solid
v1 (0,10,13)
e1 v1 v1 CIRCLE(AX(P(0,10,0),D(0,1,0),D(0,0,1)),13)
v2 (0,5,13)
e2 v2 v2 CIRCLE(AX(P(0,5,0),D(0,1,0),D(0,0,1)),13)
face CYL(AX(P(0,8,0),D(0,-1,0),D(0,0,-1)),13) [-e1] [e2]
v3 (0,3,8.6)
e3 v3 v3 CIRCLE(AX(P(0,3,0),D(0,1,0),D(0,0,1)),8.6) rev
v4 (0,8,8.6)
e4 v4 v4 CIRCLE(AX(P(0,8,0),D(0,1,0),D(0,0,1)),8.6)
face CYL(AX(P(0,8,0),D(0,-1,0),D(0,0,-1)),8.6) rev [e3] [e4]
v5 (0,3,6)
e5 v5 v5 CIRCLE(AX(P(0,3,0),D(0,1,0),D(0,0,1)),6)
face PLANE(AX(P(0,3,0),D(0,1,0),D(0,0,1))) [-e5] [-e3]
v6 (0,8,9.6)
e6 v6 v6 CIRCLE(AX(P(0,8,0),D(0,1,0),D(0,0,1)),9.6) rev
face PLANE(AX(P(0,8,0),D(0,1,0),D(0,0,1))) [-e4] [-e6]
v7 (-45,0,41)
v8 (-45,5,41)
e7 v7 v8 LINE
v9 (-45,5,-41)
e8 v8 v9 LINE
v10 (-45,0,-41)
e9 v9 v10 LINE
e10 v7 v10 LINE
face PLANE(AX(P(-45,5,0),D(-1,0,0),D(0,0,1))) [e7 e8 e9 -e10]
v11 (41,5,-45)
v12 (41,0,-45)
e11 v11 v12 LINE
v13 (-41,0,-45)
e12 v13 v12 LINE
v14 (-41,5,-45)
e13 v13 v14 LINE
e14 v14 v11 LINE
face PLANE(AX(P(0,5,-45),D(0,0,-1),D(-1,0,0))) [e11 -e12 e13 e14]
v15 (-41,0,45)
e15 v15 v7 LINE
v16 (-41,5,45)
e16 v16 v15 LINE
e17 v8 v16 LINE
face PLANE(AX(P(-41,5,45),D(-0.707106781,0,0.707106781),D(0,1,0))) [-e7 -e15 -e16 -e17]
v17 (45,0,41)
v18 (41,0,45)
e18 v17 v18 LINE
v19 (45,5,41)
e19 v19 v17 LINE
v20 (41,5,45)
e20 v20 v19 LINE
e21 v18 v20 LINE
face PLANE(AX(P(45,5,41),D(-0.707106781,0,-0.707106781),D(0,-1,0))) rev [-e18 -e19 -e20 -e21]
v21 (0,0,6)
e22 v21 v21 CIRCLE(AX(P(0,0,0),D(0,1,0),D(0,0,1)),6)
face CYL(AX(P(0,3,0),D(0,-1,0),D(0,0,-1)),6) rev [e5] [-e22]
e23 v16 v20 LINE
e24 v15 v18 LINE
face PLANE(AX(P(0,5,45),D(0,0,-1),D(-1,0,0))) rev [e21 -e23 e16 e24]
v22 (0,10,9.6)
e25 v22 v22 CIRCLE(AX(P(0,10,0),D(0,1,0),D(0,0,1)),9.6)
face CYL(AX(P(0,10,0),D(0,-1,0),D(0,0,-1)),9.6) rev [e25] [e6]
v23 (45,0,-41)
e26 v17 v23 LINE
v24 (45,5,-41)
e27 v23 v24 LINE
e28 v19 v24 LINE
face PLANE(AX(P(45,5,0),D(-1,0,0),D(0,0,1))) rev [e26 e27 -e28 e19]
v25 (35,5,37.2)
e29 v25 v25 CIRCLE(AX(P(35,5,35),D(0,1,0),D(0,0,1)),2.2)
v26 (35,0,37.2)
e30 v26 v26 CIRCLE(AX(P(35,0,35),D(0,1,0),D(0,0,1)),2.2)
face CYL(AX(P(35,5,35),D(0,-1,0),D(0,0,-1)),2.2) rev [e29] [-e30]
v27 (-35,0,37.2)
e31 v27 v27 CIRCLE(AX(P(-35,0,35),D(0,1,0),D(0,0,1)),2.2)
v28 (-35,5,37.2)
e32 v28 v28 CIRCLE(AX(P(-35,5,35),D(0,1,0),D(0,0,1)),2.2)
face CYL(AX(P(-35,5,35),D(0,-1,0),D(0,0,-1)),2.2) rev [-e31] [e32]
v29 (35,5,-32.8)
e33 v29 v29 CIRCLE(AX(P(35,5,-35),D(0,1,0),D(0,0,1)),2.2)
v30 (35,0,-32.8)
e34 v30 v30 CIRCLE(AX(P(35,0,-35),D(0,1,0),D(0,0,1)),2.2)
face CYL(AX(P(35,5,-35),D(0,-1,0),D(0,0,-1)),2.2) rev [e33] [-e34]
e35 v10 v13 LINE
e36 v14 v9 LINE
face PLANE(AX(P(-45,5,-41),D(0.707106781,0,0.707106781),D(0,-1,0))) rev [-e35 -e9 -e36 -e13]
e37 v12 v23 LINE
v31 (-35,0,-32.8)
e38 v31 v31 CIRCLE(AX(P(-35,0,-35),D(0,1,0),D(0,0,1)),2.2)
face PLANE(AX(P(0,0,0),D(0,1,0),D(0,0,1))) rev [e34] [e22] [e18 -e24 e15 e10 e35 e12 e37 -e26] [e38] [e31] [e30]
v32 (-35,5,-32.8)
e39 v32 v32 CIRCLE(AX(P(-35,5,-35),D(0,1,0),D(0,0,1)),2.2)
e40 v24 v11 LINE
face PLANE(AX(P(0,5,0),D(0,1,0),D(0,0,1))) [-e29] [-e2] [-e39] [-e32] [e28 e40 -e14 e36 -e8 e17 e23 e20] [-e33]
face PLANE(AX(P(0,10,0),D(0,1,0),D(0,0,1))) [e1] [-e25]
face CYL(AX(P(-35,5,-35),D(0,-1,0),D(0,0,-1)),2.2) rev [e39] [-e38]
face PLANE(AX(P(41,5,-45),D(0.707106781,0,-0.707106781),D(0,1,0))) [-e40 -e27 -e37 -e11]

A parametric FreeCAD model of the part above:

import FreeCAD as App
import Part
import Sketcher

V = App.Vector


def edges_at(feature, points):
    """Names of the edges that pass closest to the given points."""
    edges = feature.Shape.Edges
    near = lambda p: min(range(len(edges)), key=lambda i: edges[i].distToShape(Part.Vertex(*p))[0])
    return sorted({f"Edge{near(p) + 1}" for p in points})


def add_polygon(sketch, points):
    """Adds a closed chain of lines whose ends are joined by coincident constraints."""
    first, n = sketch.GeometryCount, len(points)
    for a, b in zip(points, points[1:] + points[:1]):
        sketch.addGeometry(Part.LineSegment(App.Vector(*a, 0), App.Vector(*b, 0)), False)
    for i in range(n):
        sketch.addConstraint(Sketcher.Constraint("Coincident", first + i, 2, first + (i + 1) % n, 1))

doc = App.newDocument("Part")
body = doc.addObject("PartDesign::Body", "Body")

# Sketch on XZ plane
sketch1 = doc.addObject("Sketcher::SketchObject", "Sketch")
body.addObject(sketch1)
sketch1.AttachmentSupport = (doc.XZ_Plane, [""])
sketch1.MapMode = "FlatFace"
add_polygon(sketch1, [(-45, -45), (-45, 45), (45, 45), (45, -45)])  # lines 0-3
sketch1.addGeometry(Part.Circle(V(-35, 35, 0), V(0, 0, 1), 2.2), False)  # 4
sketch1.addGeometry(Part.Circle(V(35, 35, 0), V(0, 0, 1), 2.2), False)  # 5
sketch1.addGeometry(Part.Circle(V(-35, -35, 0), V(0, 0, 1), 2.2), False)  # 6
sketch1.addGeometry(Part.Circle(V(0, 0, 0), V(0, 0, 1), 13), False)  # 7
sketch1.addGeometry(Part.Circle(V(35, -35, 0), V(0, 0, 1), 2.2), False)  # 8
sketch1.addConstraint([
    Sketcher.Constraint("Vertical", 0),
    Sketcher.Constraint("Horizontal", 1),
    Sketcher.Constraint("Vertical", 2),
    Sketcher.Constraint("Horizontal", 3),
    Sketcher.Constraint("Coincident", 7, 3, -1, 1),
    Sketcher.Constraint("Equal", 4, 5),
    Sketcher.Constraint("Equal", 5, 6),
    Sketcher.Constraint("Equal", 6, 8),
    Sketcher.Constraint("Symmetric", 5, 3, 6, 3, -1, 1),
    Sketcher.Constraint("Symmetric", 4, 3, 8, 3, -1, 1),
    Sketcher.Constraint("Symmetric", 0, 2, 2, 2, -1, 1),
    Sketcher.Constraint("Symmetric", 4, 3, 5, 3, -2),
    Sketcher.Constraint("Equal", 3, 0),
    Sketcher.Constraint("Diameter", 7, 26.0),
    Sketcher.Constraint("Diameter", 4, 4.4),
    Sketcher.Constraint("DistanceX", 1, 1, 1, 2, 90.0),
    Sketcher.Constraint("DistanceX", 4, 3, -1, 1, 35.0),
    Sketcher.Constraint("DistanceY", -1, 1, 4, 3, 35.0),
])
pad1 = doc.addObject("PartDesign::Pad", "Pad")
body.addObject(pad1)
pad1.Profile = sketch1
pad1.Length = 5
pad1.Reversed = True

# Sketch on XZ plane
sketch2 = doc.addObject("Sketcher::SketchObject", "Sketch001")
body.addObject(sketch2)
sketch2.AttachmentSupport = (doc.XZ_Plane, [""])
sketch2.MapMode = "FlatFace"
sketch2.addGeometry([
    Part.Circle(V(0, 0, 0), V(0, 0, 1), 13),
    Part.Circle(V(0, 0, 0), V(0, 0, 1), 6),
], False)
sketch2.addConstraint([
    Sketcher.Constraint("Coincident", 0, 3, -1, 1),
    Sketcher.Constraint("Coincident", 1, 3, -1, 1),
    Sketcher.Constraint("Diameter", 0, 26.0),
    Sketcher.Constraint("Diameter", 1, 12.0),
])
pad2 = doc.addObject("PartDesign::Pad", "Pad001")
body.addObject(pad2)
pad2.Profile = sketch2
pad2.Length = 3
pad2.Reversed = True

# Sketch on XZ plane
sketch3 = doc.addObject("Sketcher::SketchObject", "Sketch002")
body.addObject(sketch3)
sketch3.AttachmentSupport = (doc.XZ_Plane, [""])
sketch3.MapMode = "FlatFace"
sketch3.addGeometry([
    Part.Circle(V(0, 0, 0), V(0, 0, 1), 13),
    Part.Circle(V(0, 0, 0), V(0, 0, 1), 9),
], False)
sketch3.addConstraint([
    Sketcher.Constraint("Coincident", 0, 3, -1, 1),
    Sketcher.Constraint("Coincident", 1, 3, -1, 1),
    Sketcher.Constraint("Diameter", 0, 26.0),
    Sketcher.Constraint("Diameter", 1, 17.2),
])
pad3 = doc.addObject("PartDesign::Pad", "Pad002")
body.addObject(pad3)
pad3.Profile = sketch3
pad3.Length = 8
pad3.Reversed = True

# Sketch on XZ plane
sketch4 = doc.addObject("Sketcher::SketchObject", "Sketch003")
body.addObject(sketch4)
sketch4.AttachmentSupport = (doc.XZ_Plane, [""])
sketch4.MapMode = "FlatFace"
sketch4.addGeometry([
    Part.Circle(V(0, 0, 0), V(0, 0, 1), 13),
    Part.Circle(V(0, 0, 0), V(0, 0, 1), 10),
], False)
sketch4.addConstraint([
    Sketcher.Constraint("Coincident", 0, 3, -1, 1),
    Sketcher.Constraint("Coincident", 1, 3, -1, 1),
    Sketcher.Constraint("Diameter", 0, 26.0),
    Sketcher.Constraint("Diameter", 1, 19.2),
])
pad4 = doc.addObject("PartDesign::Pad", "Pad003")
body.addObject(pad4)
pad4.Profile = sketch4
pad4.Length = 10
pad4.Reversed = True
doc.recompute()

chamfer = doc.addObject("PartDesign::Chamfer", "Chamfer")
body.addObject(chamfer)
chamfer.Base = (pad4, edges_at(pad4, [
    (-45, 2.5, 45),
    (-45, 2.5, -45),
    (45, 2.5, -45),
    (45, 2.5, 45),
]))
chamfer.Size = 4

doc.recompute()
